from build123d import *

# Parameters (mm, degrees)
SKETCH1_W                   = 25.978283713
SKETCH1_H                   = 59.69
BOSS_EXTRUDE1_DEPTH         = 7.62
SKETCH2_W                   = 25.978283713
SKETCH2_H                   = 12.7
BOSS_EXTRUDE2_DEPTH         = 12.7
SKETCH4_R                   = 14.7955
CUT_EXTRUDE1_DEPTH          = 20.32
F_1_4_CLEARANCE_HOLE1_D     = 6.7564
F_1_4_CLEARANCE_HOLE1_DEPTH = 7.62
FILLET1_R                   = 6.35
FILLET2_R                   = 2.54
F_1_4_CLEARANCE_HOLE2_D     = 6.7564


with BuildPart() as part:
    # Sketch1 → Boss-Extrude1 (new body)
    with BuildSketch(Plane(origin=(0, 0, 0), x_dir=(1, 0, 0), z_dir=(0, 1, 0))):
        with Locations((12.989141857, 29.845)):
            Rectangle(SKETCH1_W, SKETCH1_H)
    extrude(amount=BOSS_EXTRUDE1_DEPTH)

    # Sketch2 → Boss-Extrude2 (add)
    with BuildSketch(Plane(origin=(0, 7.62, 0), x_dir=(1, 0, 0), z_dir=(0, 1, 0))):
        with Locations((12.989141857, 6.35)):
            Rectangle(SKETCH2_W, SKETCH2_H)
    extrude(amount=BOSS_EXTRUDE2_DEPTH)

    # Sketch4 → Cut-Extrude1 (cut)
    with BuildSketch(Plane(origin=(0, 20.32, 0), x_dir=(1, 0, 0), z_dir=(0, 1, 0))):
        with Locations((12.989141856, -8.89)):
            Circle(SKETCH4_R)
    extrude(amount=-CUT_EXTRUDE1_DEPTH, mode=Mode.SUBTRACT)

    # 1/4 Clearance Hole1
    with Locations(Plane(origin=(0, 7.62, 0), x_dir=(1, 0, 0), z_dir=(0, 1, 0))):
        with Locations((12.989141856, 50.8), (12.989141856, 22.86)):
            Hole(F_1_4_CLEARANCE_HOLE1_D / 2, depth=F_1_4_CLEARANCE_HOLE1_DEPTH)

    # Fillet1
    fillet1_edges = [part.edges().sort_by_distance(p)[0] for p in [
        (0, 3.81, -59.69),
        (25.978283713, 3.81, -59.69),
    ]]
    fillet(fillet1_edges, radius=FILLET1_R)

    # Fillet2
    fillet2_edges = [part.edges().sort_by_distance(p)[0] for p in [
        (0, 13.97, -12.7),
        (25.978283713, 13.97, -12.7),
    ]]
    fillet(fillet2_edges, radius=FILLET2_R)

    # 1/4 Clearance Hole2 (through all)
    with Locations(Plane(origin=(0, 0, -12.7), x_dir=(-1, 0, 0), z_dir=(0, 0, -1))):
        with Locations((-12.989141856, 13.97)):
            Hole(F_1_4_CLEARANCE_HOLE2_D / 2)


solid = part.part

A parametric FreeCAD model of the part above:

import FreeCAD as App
import Part
import Sketcher

V = App.Vector
Q = App.Units.Quantity


def edges_at(feature, points):
    """Names of the edges that pass closest to the given points."""
    edges = feature.Shape.Edges
    near = lambda p: min(range(len(edges)), key=lambda i: edges[i].distToShape(Part.Vertex(*p))[0])
    return sorted({f"Edge{near(p) + 1}" for p in points})

doc = App.newDocument("Part")
body = doc.addObject("PartDesign::Body", "Body")

# Sketch on XZ plane
sketch1 = body.newObject("Sketcher::SketchObject", "Sketch")
sketch1.AttachmentSupport = (doc.getObject("XZ_Plane"), [""])
sketch1.MapMode = "FlatFace"
sketch1.addGeometry(Part.LineSegment(V(0, -60, 0), V(0, 0, 0)), False)
sketch1.addGeometry(Part.LineSegment(V(0, 0, 0), V(26, 0, 0)), False)
sketch1.addGeometry(Part.LineSegment(V(26, 0, 0), V(26, -60, 0)), False)
sketch1.addGeometry(Part.LineSegment(V(26, -60, 0), V(0, -60, 0)), False)
sketch1.addConstraint(Sketcher.Constraint("Coincident", 0, 2, 1, 1))
sketch1.addConstraint(Sketcher.Constraint("Coincident", 1, 2, 2, 1))
sketch1.addConstraint(Sketcher.Constraint("Coincident", 2, 2, 3, 1))
sketch1.addConstraint(Sketcher.Constraint("Coincident", 3, 2, 0, 1))
sketch1.addConstraint(Sketcher.Constraint("Vertical", 0))
sketch1.addConstraint(Sketcher.Constraint("Horizontal", 1))
sketch1.addConstraint(Sketcher.Constraint("Vertical", 2))
sketch1.addConstraint(Sketcher.Constraint("Horizontal", 3))
sketch1.addConstraint(Sketcher.Constraint("Coincident", 0, 2, -1, 1))
sketch1.addConstraint(Sketcher.Constraint("DistanceY", 0, 1, 0, 2, Q("2.35 in")))
sketch1.addConstraint(Sketcher.Constraint("DistanceX", 1, 1, 1, 2, 25.978284))
pad1 = body.newObject("PartDesign::Pad", "Pad")
pad1.Profile = sketch1
pad1.Length = Q("0.3 in")
pad1.Reversed = True

# Sketch on XZ plane
sketch2 = body.newObject("Sketcher::SketchObject", "Sketch001")
sketch2.AttachmentSupport = (doc.getObject("XZ_Plane"), [""])
sketch2.MapMode = "FlatFace"
sketch2.AttachmentOffset = App.Placement(V(0, 0, -0.3 * 25.4), App.Rotation())
sketch2.addGeometry(Part.LineSegment(V(0, -13, 0), V(0, 0, 0)), False)
sketch2.addGeometry(Part.LineSegment(V(0, 0, 0), V(26, 0, 0)), False)
sketch2.addGeometry(Part.LineSegment(V(26, 0, 0), V(26, -13, 0)), False)
sketch2.addGeometry(Part.LineSegment(V(26, -13, 0), V(0, -13, 0)), False)
sketch2.addConstraint(Sketcher.Constraint("Coincident", 0, 2, 1, 1))
sketch2.addConstraint(Sketcher.Constraint("Coincident", 1, 2, 2, 1))
sketch2.addConstraint(Sketcher.Constraint("Coincident", 2, 2, 3, 1))
sketch2.addConstraint(Sketcher.Constraint("Coincident", 3, 2, 0, 1))
sketch2.addConstraint(Sketcher.Constraint("Vertical", 0))
sketch2.addConstraint(Sketcher.Constraint("Horizontal", 1))
sketch2.addConstraint(Sketcher.Constraint("Vertical", 2))
sketch2.addConstraint(Sketcher.Constraint("Horizontal", 3))
sketch2.addConstraint(Sketcher.Constraint("Coincident", 0, 2, -1, 1))
sketch2.addConstraint(Sketcher.Constraint("DistanceY", 0, 1, 0, 2, Q("0.5 in")))
sketch2.addConstraint(Sketcher.Constraint("DistanceX", 1, 1, 1, 2, 25.978284))
pad2 = body.newObject("PartDesign::Pad", "Pad001")
pad2.Profile = sketch2
pad2.Length = Q("0.5 in")
pad2.Reversed = True

# Sketch on XZ plane
sketch3 = body.newObject("Sketcher::SketchObject", "Sketch002")
sketch3.AttachmentSupport = (doc.getObject("XZ_Plane"), [""])
sketch3.MapMode = "FlatFace"
sketch3.AttachmentOffset = App.Placement(V(0, 0, -0.8 * 25.4), App.Rotation())
sketch3.addGeometry(Part.Circle(V(13, 9, 0), V(0, 0, 1), 15), False)
sketch3.addConstraint(Sketcher.Constraint("Diameter", 0, Q("1.165 in")))
sketch3.addConstraint(Sketcher.Constraint("DistanceY", -1, 1, 0, 3, Q("0.35 in")))
sketch3.addConstraint(Sketcher.Constraint("DistanceX", -1, 1, 0, 3, 12.989142))
pocket1 = body.newObject("PartDesign::Pocket", "Pocket")
pocket1.Profile = sketch3
pocket1.Length = Q("0.8 in")
pocket1.Reversed = True

# Sketch on XZ plane
sketch4 = body.newObject("Sketcher::SketchObject", "Sketch003")
sketch4.AttachmentSupport = (doc.getObject("XZ_Plane"), [""])
sketch4.MapMode = "FlatFace"
sketch4.AttachmentOffset = App.Placement(V(0, 0, -0.3 * 25.4), App.Rotation())
sketch4.addGeometry(Part.Circle(V(13, -50.8, 0), V(0, 0, 1), 3.4), False)
sketch4.addGeometry(Part.Circle(V(13, -22.9, 0), V(0, 0, 1), 3.4), False)
sketch4.addConstraint(Sketcher.Constraint("Equal", 0, 1))
sketch4.addConstraint(Sketcher.Constraint("Vertical", 0, 3, 1, 3))
sketch4.addConstraint(Sketcher.Constraint("Diameter", 0, Q("0.266 in")))
sketch4.addConstraint(Sketcher.Constraint("DistanceY", 0, 3, -1, 1, Q("2 in")))
sketch4.addConstraint(Sketcher.Constraint("DistanceY", 1, 3, -1, 1, Q("0.9 in")))
sketch4.addConstraint(Sketcher.Constraint("DistanceX", -1, 1, 0, 3, 12.989142))
doc.recompute()
hole = body.newObject("PartDesign::Hole", "Hole")
hole.Profile = sketch4
hole.ThreadType = "None"
hole.Diameter = Q("0.266 in")
hole.DepthType = "Dimension"
hole.Depth = Q("0.3 in")
hole.DrillPoint = "Flat"
hole.Reversed = True
doc.recompute()

fillet = body.newObject("PartDesign::Fillet", "Fillet")
fillet.Base = (hole, edges_at(hole, [(0, 3.81, -59.69), (25.978, 3.81, -59.69)]))
fillet.Radius = Q("0.25 in")
doc.recompute()

fillet2 = body.newObject("PartDesign::Fillet", "Fillet001")
fillet2.Base = (fillet, edges_at(fillet, [(0, 13.97, -12.7), (25.978, 13.97, -12.7)]))
fillet2.Radius = Q("0.1 in")

# Sketch on XY plane
sketch5 = body.newObject("Sketcher::SketchObject", "Sketch004")
sketch5.AttachmentSupport = (doc.getObject("XY_Plane"), [""])
sketch5.MapMode = "FlatFace"
sketch5.AttachmentOffset = App.Placement(V(0, 0, -0.5 * 25.4), App.Rotation())
sketch5.addGeometry(Part.Circle(V(13, 14, 0), V(0, 0, 1), 3.4), False)
sketch5.addConstraint(Sketcher.Constraint("Diameter", 0, Q("0.266 in")))
sketch5.addConstraint(Sketcher.Constraint("DistanceY", -1, 1, 0, 3, Q("0.55 in")))
sketch5.addConstraint(Sketcher.Constraint("DistanceX", -1, 1, 0, 3, 12.989142))
doc.recompute()
hole2 = body.newObject("PartDesign::Hole", "Hole001")
hole2.Profile = sketch5
hole2.ThreadType = "None"
hole2.Diameter = Q("0.266 in")
hole2.DepthType = "ThroughAll"
hole2.Reversed = True

doc.recompute()
